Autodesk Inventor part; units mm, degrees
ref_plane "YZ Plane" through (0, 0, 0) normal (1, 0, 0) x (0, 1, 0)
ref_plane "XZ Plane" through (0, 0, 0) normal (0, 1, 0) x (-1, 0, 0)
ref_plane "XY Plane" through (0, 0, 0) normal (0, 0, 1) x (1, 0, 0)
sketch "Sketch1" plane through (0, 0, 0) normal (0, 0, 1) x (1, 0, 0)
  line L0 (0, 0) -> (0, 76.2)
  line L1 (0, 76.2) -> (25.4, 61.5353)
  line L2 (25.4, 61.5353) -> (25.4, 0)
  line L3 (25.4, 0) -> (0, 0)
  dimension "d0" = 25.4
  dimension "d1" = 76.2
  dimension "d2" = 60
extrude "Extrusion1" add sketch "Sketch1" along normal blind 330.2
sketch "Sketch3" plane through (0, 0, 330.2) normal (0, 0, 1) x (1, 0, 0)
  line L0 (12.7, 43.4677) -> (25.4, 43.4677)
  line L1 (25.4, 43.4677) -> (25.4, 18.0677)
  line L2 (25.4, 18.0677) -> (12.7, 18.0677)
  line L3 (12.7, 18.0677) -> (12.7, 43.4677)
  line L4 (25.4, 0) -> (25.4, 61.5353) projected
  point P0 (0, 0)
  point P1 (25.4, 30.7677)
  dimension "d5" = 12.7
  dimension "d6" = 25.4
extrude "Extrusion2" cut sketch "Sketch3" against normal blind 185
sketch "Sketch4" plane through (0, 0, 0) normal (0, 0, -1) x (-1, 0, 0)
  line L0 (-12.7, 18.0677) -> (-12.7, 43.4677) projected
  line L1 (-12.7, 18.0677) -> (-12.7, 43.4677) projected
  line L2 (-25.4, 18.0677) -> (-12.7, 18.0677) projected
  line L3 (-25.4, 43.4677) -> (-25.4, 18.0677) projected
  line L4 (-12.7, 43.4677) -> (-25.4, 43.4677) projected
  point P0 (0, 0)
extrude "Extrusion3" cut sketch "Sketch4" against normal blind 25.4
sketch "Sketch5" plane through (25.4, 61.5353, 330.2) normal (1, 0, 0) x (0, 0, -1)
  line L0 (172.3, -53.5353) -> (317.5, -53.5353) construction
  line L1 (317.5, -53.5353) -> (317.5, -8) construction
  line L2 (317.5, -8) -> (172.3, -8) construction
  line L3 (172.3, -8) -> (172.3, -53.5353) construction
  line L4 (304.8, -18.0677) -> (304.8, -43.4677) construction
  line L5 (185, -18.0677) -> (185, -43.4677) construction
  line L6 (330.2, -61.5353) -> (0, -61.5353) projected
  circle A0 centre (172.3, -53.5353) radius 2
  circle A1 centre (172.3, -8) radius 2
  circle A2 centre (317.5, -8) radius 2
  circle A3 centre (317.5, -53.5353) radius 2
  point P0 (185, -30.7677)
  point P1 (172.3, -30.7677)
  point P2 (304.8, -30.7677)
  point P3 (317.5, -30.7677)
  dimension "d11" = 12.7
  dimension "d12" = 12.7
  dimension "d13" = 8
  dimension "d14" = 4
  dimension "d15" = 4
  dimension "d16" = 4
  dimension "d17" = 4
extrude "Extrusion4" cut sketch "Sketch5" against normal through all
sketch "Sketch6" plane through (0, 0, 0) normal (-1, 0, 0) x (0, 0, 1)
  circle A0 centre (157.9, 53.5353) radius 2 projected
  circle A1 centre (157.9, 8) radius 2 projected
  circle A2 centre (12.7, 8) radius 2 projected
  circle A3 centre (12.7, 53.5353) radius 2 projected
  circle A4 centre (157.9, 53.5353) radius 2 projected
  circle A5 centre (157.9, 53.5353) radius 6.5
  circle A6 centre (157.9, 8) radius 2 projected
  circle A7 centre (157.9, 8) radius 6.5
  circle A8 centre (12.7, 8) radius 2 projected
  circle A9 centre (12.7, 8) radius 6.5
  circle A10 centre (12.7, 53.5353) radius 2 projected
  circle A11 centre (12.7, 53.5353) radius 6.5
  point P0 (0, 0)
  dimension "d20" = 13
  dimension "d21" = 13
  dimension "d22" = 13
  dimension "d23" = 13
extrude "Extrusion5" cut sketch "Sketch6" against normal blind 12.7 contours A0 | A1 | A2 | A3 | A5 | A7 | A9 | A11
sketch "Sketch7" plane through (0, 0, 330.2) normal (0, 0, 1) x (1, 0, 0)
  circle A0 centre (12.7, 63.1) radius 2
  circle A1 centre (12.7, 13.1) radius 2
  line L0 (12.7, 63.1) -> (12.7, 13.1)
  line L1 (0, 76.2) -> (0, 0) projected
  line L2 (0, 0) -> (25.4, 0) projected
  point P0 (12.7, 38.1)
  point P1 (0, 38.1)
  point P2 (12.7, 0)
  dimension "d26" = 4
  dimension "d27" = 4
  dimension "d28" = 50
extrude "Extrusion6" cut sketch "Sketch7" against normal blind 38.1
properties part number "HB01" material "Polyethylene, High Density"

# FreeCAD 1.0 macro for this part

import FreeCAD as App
import Part
import Sketcher
from FreeCAD import Vector
Q = App.Units.Quantity

doc = App.newDocument("Part")
body = doc.addObject("PartDesign::Body", "Body")

# Sketch on XY plane
sketch1 = body.newObject("Sketcher::SketchObject", "Sketch")
sketch1.AttachmentSupport = (doc.getObject("XY_Plane"), [""])
sketch1.MapMode = "FlatFace"
sketch1.addGeometry([
    Part.LineSegment(Vector(0, 76, 0), Vector(0, 0, 0)),
    Part.LineSegment(Vector(0, 0, 0), Vector(25, 0, 0)),
    Part.LineSegment(Vector(25, 0, 0), Vector(25, 62, 0)),
    Part.LineSegment(Vector(25, 62, 0), Vector(0, 76, 0)),
], False)
sketch1.addConstraint([
    Sketcher.Constraint("Coincident", 0, 2, 1, 1),
    Sketcher.Constraint("Coincident", 1, 2, 2, 1),
    Sketcher.Constraint("Coincident", 2, 2, 3, 1),
    Sketcher.Constraint("Coincident", 3, 2, 0, 1),
    Sketcher.Constraint("Vertical", 0),
    Sketcher.Constraint("Horizontal", 1),
    Sketcher.Constraint("Vertical", 2),
    Sketcher.Constraint("Coincident", 0, 2, -1, 1),
    Sketcher.Constraint("DistanceX", 1, 1, 1, 2, Q("1 in")),
    Sketcher.Constraint("DistanceY", 0, 2, 0, 1, Q("3 in")),
    Sketcher.Constraint("Angle", 3, Q("150 deg")),
])
pad1 = body.newObject("PartDesign::Pad", "Pad")
pad1.Profile = sketch1
pad1.Length = Q("13 in")

# Sketch on XY plane
sketch2 = body.newObject("Sketcher::SketchObject", "Sketch001")
sketch2.AttachmentSupport = (doc.getObject("XY_Plane"), [""])
sketch2.MapMode = "FlatFace"
sketch2.AttachmentOffset = App.Placement(Vector(0, 0, 13 * 25.4), App.Rotation())
sketch2.addGeometry([
    Part.LineSegment(Vector(25, 43, 0), Vector(13, 43, 0)),
    Part.LineSegment(Vector(13, 43, 0), Vector(13, 18, 0)),
    Part.LineSegment(Vector(13, 18, 0), Vector(25, 18, 0)),
    Part.LineSegment(Vector(25, 18, 0), Vector(25, 43, 0)),
], False)
sketch2.addConstraint([
    Sketcher.Constraint("Coincident", 0, 2, 1, 1),
    Sketcher.Constraint("Coincident", 1, 2, 2, 1),
    Sketcher.Constraint("Coincident", 2, 2, 3, 1),
    Sketcher.Constraint("Coincident", 3, 2, 0, 1),
    Sketcher.Constraint("Horizontal", 0),
    Sketcher.Constraint("Vertical", 1),
    Sketcher.Constraint("Horizontal", 2),
    Sketcher.Constraint("Vertical", 3),
    Sketcher.Constraint("DistanceY", 1, 2, 1, 1, Q("1 in")),
    Sketcher.Constraint("DistanceX", 0, 2, 0, 1, Q("0.5 in")),
    Sketcher.Constraint("DistanceX", -1, 1, 2, 2, Q("1 in")),
    Sketcher.Constraint("DistanceY", -1, 1, 0, 2, 43.4677),
])
pocket1 = body.newObject("PartDesign::Pocket", "Pocket")
pocket1.Profile = sketch2
pocket1.Length = 185

# Sketch on XY plane
sketch3 = body.newObject("Sketcher::SketchObject", "Sketch002")
sketch3.AttachmentSupport = (doc.getObject("XY_Plane"), [""])
sketch3.MapMode = "FlatFace"
sketch3.addGeometry([
    Part.LineSegment(Vector(25, 18, 0), Vector(13, 18, 0)),
    Part.LineSegment(Vector(13, 18, 0), Vector(13, 43, 0)),
    Part.LineSegment(Vector(13, 43, 0), Vector(25, 43, 0)),
    Part.LineSegment(Vector(25, 43, 0), Vector(25, 18, 0)),
], False)
sketch3.addConstraint([
    Sketcher.Constraint("Coincident", 0, 2, 1, 1),
    Sketcher.Constraint("Coincident", 1, 2, 2, 1),
    Sketcher.Constraint("Coincident", 2, 2, 3, 1),
    Sketcher.Constraint("Coincident", 3, 2, 0, 1),
    Sketcher.Constraint("Horizontal", 0),
    Sketcher.Constraint("Vertical", 1),
    Sketcher.Constraint("Horizontal", 2),
    Sketcher.Constraint("Vertical", 3),
    Sketcher.Constraint("DistanceY", 1, 1, 1, 2, Q("1 in")),
    Sketcher.Constraint("DistanceX", 0, 2, 0, 1, Q("0.5 in")),
    Sketcher.Constraint("DistanceX", -1, 1, 2, 2, Q("1 in")),
    Sketcher.Constraint("DistanceY", -1, 1, 0, 2, 18.0677),
])
pocket2 = body.newObject("PartDesign::Pocket", "Pocket001")
pocket2.Profile = sketch3
pocket2.Length = Q("1 in")
pocket2.Reversed = True

# Sketch on YZ plane
sketch4 = body.newObject("Sketcher::SketchObject", "Sketch003")
sketch4.AttachmentSupport = (doc.getObject("YZ_Plane"), [""])
sketch4.MapMode = "FlatFace"
sketch4.AttachmentOffset = App.Placement(Vector(0, 0, 1 * 25.4), App.Rotation())
sketch4.addGeometry([
    Part.Circle(Vector(8, 157.9, 0), Vector(0, 0, 1), 2),
    Part.Circle(Vector(53.5, 157.9, 0), Vector(0, 0, 1), 2),
    Part.Circle(Vector(53.5, 12.7, 0), Vector(0, 0, 1), 2),
    Part.Circle(Vector(8, 12.7, 0), Vector(0, 0, 1), 2),
], False)
sketch4.addConstraint([
    Sketcher.Constraint("Equal", 0, 1),
    Sketcher.Constraint("Equal", 1, 2),
    Sketcher.Constraint("Equal", 2, 3),
    Sketcher.Constraint("Horizontal", 0, 3, 1, 3),
    Sketcher.Constraint("Horizontal", 2, 3, 3, 3),
    Sketcher.Constraint("Vertical", 1, 3, 2, 3),
    Sketcher.Constraint("Vertical", 0, 3, 3, 3),
    Sketcher.Constraint("DistanceY", -1, 1, 2, 3, Q("0.5 in")),
    Sketcher.Constraint("Diameter", 0, 4.0),
    Sketcher.Constraint("DistanceX", -1, 1, 0, 3, 8.0),
    Sketcher.Constraint("DistanceX", -1, 1, 1, 3, Q("2.1077 in")),
    Sketcher.Constraint("DistanceY", -1, 1, 0, 3, 157.9),
])
pocket3 = body.newObject("PartDesign::Pocket", "Pocket002")
pocket3.Profile = sketch4
pocket3.Type = "ThroughAll"

# Sketch on YZ plane
sketch5 = body.newObject("Sketcher::SketchObject", "Sketch004")
sketch5.AttachmentSupport = (doc.getObject("YZ_Plane"), [""])
sketch5.MapMode = "FlatFace"
sketch5.addGeometry([
    Part.Circle(Vector(54, 158, 0), Vector(0, 0, 1), 6),
    Part.Circle(Vector(8, 158, 0), Vector(0, 0, 1), 6),
    Part.Circle(Vector(8, 13, 0), Vector(0, 0, 1), 6),
    Part.Circle(Vector(54, 13, 0), Vector(0, 0, 1), 6),
], False)
sketch5.addConstraint([
    Sketcher.Constraint("Equal", 0, 1),
    Sketcher.Constraint("Equal", 1, 2),
    Sketcher.Constraint("Equal", 2, 3),
    Sketcher.Constraint("Horizontal", 0, 3, 1, 3),
    Sketcher.Constraint("Horizontal", 2, 3, 3, 3),
    Sketcher.Constraint("Vertical", 1, 3, 2, 3),
    Sketcher.Constraint("Vertical", 0, 3, 3, 3),
    Sketcher.Constraint("Diameter", 0, Q("0.5118 in")),
    Sketcher.Constraint("DistanceY", -1, 1, 2, 3, Q("0.5 in")),
    Sketcher.Constraint("DistanceX", -1, 1, 0, 3, Q("2.1077 in")),
    Sketcher.Constraint("DistanceY", -1, 1, 0, 3, 157.9),
    Sketcher.Constraint("DistanceX", -1, 1, 1, 3, 8.0),
])
pocket4 = body.newObject("PartDesign::Pocket", "Pocket003")
pocket4.Profile = sketch5
pocket4.Length = Q("0.5 in")
pocket4.Reversed = True

# Sketch on XY plane
sketch6 = body.newObject("Sketcher::SketchObject", "Sketch005")
sketch6.AttachmentSupport = (doc.getObject("XY_Plane"), [""])
sketch6.MapMode = "FlatFace"
sketch6.AttachmentOffset = App.Placement(Vector(0, 0, 13 * 25.4), App.Rotation())
sketch6.addGeometry([
    Part.Circle(Vector(12.7, 63.1, 0), Vector(0, 0, 1), 2),
    Part.Circle(Vector(12.7, 13.1, 0), Vector(0, 0, 1), 2),
], False)
sketch6.addConstraint([
    Sketcher.Constraint("Equal", 0, 1),
    Sketcher.Constraint("Vertical", 0, 3, 1, 3),
    Sketcher.Constraint("Diameter", 0, 4.0),
    Sketcher.Constraint("DistanceX", -1, 1, 0, 3, Q("0.5 in")),
    Sketcher.Constraint("DistanceY", 1, 3, 0, 3, Q("1.9685 in")),
    Sketcher.Constraint("DistanceY", -1, 1, 0, 3, 63.1),
])
pocket5 = body.newObject("PartDesign::Pocket", "Pocket004")
pocket5.Profile = sketch6
pocket5.Length = Q("1.5 in")

doc.recompute()
